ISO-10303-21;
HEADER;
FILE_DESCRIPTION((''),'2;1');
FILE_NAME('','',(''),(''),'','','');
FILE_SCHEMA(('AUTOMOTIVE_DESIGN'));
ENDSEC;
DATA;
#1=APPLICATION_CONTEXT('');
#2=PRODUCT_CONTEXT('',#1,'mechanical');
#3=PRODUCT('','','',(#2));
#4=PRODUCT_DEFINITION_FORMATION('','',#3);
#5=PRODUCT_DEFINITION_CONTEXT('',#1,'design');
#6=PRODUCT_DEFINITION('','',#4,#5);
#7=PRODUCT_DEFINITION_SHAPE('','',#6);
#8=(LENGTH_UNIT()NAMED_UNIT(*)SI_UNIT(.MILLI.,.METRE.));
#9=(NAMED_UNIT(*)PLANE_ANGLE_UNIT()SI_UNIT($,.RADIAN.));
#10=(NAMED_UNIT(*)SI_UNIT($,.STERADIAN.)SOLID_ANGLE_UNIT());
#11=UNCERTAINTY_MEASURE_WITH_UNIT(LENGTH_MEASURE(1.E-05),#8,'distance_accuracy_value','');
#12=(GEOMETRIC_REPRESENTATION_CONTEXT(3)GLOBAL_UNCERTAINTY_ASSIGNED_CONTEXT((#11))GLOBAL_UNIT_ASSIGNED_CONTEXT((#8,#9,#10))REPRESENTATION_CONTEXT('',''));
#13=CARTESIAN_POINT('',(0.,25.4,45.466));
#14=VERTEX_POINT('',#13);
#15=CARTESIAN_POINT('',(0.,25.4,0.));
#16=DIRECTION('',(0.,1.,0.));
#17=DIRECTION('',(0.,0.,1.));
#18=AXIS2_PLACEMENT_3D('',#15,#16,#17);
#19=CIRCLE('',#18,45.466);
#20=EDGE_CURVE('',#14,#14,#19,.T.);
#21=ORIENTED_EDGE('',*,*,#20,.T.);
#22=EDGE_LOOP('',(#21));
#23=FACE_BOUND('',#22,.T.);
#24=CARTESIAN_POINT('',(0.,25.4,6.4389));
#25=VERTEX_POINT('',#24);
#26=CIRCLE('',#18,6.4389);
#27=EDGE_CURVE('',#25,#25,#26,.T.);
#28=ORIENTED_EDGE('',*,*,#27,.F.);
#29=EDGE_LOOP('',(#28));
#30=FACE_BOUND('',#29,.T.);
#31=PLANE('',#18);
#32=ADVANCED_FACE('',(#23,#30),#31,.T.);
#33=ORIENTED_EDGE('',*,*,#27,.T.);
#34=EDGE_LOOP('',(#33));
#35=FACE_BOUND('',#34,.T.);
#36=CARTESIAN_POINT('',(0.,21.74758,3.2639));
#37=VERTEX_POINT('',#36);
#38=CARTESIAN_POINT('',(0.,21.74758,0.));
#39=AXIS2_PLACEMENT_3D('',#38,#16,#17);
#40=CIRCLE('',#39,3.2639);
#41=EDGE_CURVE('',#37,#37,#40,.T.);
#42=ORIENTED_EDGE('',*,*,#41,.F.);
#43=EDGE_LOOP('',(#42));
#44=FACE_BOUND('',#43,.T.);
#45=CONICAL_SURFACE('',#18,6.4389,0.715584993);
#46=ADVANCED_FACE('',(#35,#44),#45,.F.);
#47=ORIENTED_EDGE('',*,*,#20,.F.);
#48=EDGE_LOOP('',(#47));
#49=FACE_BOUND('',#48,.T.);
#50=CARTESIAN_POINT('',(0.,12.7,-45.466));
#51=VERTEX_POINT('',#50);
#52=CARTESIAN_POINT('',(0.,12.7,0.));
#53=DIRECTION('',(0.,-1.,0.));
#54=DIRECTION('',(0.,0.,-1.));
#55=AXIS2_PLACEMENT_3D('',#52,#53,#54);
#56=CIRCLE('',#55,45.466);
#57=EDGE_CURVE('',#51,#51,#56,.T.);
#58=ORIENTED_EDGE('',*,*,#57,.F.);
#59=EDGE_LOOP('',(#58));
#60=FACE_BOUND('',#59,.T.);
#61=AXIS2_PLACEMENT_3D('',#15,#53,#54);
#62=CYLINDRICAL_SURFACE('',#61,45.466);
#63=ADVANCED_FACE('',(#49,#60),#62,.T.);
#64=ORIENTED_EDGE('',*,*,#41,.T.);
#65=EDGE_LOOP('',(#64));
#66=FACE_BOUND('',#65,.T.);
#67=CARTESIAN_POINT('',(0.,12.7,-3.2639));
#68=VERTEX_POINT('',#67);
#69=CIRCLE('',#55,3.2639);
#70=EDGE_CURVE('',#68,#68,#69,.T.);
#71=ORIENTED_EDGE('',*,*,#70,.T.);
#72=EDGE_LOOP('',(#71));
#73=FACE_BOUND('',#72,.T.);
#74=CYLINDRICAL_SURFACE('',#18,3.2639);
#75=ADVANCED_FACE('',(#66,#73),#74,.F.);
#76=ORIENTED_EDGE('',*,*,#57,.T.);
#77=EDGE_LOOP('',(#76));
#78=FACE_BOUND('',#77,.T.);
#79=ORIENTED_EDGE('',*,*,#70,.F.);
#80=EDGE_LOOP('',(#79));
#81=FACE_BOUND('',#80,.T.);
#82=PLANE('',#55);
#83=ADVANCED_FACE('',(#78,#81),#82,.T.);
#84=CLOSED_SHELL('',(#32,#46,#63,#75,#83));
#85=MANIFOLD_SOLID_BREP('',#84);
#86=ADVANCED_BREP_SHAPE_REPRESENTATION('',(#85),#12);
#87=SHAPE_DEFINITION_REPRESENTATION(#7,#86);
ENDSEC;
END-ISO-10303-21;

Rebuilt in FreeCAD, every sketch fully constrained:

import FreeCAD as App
import Part
import Sketcher
from FreeCAD import Vector
Q = App.Units.Quantity

doc = App.newDocument("Part")
body = doc.addObject("PartDesign::Body", "Body")

sketch1 = body.newObject("Sketcher::SketchObject", "Sketch")
sketch1.AttachmentSupport = (doc.getObject("XZ_Plane"), [""])
sketch1.MapMode = "FlatFace"
sketch1.addGeometry(Part.Circle(Vector(0, 0, 0), Vector(0, 0, 1), 45), False)
sketch1.addConstraint([
    Sketcher.Constraint("Coincident", 0, 3, -1, 1),
    Sketcher.Constraint("Diameter", 0, Q("3.58 in")),
])
pad1 = body.newObject("PartDesign::Pad", "Pad")
pad1.Profile = sketch1
pad1.Length = Q("1 in")
pad1.Reversed = True

sketch2 = body.newObject("Sketcher::SketchObject", "Sketch001")
sketch2.AttachmentSupport = (doc.getObject("XZ_Plane"), [""])
sketch2.MapMode = "FlatFace"
sketch2.addGeometry(Part.Circle(Vector(0, 0, 0), Vector(0, 0, 1), 20), False)
sketch2.addConstraint([
    Sketcher.Constraint("Coincident", 0, 3, -1, 1),
    Sketcher.Constraint("Diameter", 0, Q("1.6 in")),
])
pocket1 = body.newObject("PartDesign::Pocket", "Pocket")
pocket1.Profile = sketch2
pocket1.Length = Q("0.5 in")

sketch3 = body.newObject("Sketcher::SketchObject", "Sketch002")
sketch3.AttachmentSupport = (doc.getObject("XZ_Plane"), [""])
sketch3.MapMode = "FlatFace"
sketch3.AttachmentOffset = App.Placement(Vector(0, 0, -1 * 25.4), App.Rotation())
sketch3.addGeometry(Part.Circle(Vector(0, 0, 0), Vector(0, 0, 1), 3.3), False)
sketch3.addConstraint([
    Sketcher.Constraint("Coincident", 0, 3, -1, 1),
    Sketcher.Constraint("Diameter", 0, Q("0.257 in")),
])
doc.recompute()
hole = body.newObject("PartDesign::Hole", "Hole")
hole.Profile = sketch3
hole.ThreadType = "None"
hole.Diameter = Q("0.257 in")
hole.DepthType = "Dimension"
hole.Depth = Q("1 in")
hole.DrillPoint = "Angled"
hole.DrillPointAngle = 118
hole.HoleCutType = "Countersink"
hole.HoleCutDiameter = Q("0.507 in")
hole.HoleCutCountersinkAngle = 82
hole.Reversed = True

sketch4 = body.newObject("Sketcher::SketchObject", "Sketch003")
sketch4.AttachmentSupport = (doc.getObject("XZ_Plane"), [""])
sketch4.MapMode = "FlatFace"
sketch4.addGeometry(Part.Circle(Vector(0, 0, 0), Vector(0, 0, 1), 53), False)
sketch4.addConstraint([
    Sketcher.Constraint("Coincident", 0, 3, -1, 1),
    Sketcher.Constraint("Diameter", 0, Q("106.063837 mm")),
])
pocket2 = body.newObject("PartDesign::Pocket", "Pocket001")
pocket2.Profile = sketch4
pocket2.Length = Q("0.5 in")

doc.recompute()
